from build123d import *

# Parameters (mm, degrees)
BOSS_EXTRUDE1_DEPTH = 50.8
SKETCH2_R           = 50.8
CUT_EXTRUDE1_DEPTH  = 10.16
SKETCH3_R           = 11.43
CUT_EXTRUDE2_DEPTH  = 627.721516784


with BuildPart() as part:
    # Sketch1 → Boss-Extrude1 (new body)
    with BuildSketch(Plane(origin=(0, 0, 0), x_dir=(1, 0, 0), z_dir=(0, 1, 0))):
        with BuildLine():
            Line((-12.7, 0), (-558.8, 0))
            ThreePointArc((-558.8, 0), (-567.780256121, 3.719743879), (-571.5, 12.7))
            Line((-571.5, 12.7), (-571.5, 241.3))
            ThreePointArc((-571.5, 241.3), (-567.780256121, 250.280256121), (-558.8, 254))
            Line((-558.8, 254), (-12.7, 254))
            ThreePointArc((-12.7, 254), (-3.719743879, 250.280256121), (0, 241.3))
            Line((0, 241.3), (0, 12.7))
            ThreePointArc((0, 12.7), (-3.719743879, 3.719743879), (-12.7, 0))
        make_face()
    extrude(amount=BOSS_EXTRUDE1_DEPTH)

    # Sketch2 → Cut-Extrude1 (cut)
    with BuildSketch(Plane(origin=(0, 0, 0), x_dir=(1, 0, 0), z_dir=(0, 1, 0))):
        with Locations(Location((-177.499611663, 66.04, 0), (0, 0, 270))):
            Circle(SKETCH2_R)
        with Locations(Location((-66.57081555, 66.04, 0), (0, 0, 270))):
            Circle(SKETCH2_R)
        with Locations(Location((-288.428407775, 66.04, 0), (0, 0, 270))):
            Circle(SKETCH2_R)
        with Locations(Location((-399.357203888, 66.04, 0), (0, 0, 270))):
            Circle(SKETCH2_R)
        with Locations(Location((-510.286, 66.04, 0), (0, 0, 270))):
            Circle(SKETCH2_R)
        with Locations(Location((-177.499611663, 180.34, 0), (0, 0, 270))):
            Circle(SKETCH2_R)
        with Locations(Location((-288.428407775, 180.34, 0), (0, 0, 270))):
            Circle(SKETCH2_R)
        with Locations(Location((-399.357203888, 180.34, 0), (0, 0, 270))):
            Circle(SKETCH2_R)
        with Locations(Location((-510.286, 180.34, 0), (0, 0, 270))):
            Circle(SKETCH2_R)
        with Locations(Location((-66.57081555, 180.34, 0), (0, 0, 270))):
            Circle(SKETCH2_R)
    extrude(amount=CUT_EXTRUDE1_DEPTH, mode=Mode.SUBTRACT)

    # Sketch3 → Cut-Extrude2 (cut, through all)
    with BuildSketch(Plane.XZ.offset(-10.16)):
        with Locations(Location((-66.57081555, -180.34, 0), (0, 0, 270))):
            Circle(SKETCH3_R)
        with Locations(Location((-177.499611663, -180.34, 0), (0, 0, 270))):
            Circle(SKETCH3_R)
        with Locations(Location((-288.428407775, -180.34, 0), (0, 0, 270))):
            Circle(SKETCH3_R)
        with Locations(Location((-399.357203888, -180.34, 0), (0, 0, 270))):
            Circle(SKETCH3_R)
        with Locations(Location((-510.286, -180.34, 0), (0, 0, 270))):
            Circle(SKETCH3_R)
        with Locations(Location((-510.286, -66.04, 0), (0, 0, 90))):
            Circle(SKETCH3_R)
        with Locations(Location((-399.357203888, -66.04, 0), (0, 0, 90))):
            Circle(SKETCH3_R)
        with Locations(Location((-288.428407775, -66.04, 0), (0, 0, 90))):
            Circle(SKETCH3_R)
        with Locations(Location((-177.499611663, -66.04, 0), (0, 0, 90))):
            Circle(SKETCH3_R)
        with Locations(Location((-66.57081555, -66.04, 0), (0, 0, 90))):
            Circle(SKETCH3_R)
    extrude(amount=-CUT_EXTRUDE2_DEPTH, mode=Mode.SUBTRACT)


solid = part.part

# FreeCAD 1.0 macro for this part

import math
import FreeCAD as App
import Part
import Sketcher
Q = App.Units.Quantity

doc = App.newDocument("Part")
body = doc.addObject("PartDesign::Body", "Body")

sketch1 = body.newObject("Sketcher::SketchObject", "Sketch")
sketch1.AttachmentSupport = (doc.getObject("XZ_Plane"), [""])
sketch1.MapMode = "FlatFace"
sketch1.addGeometry([
    Part.LineSegment(App.Vector(-559, 0, 0), App.Vector(-13, 0, 0)),
    Part.ArcOfCircle(Part.Circle(App.Vector(-13, -13, 0), App.Vector(0, 0, 1), 13), math.radians(0), math.radians(90)),
    Part.LineSegment(App.Vector(0, -13, 0), App.Vector(0, -241, 0)),
    Part.ArcOfCircle(Part.Circle(App.Vector(-13, -241, 0), App.Vector(0, 0, 1), 13), math.radians(-90), math.radians(0)),
    Part.LineSegment(App.Vector(-13, -254, 0), App.Vector(-559, -254, 0)),
    Part.ArcOfCircle(Part.Circle(App.Vector(-559, -241, 0), App.Vector(0, 0, 1), 13), math.radians(180), math.radians(270)),
    Part.LineSegment(App.Vector(-572, -241, 0), App.Vector(-572, -13, 0)),
    Part.ArcOfCircle(Part.Circle(App.Vector(-559, -13, 0), App.Vector(0, 0, 1), 13), math.radians(90), math.radians(180)),
], False)
sketch1.addConstraint([
    Sketcher.Constraint("Tangent", 0, 2, 1, 2),
    Sketcher.Constraint("Tangent", 1, 1, 2, 1),
    Sketcher.Constraint("Tangent", 2, 2, 3, 2),
    Sketcher.Constraint("Tangent", 3, 1, 4, 1),
    Sketcher.Constraint("Tangent", 4, 2, 5, 2),
    Sketcher.Constraint("Tangent", 5, 1, 6, 1),
    Sketcher.Constraint("Tangent", 6, 2, 7, 2),
    Sketcher.Constraint("Tangent", 7, 1, 0, 1),
    Sketcher.Constraint("Horizontal", 0),
    Sketcher.Constraint("Vertical", 2),
    Sketcher.Constraint("Horizontal", 4),
    Sketcher.Constraint("Vertical", 6),
    Sketcher.Constraint("Equal", 1, 3),
    Sketcher.Constraint("Equal", 3, 5),
    Sketcher.Constraint("Equal", 5, 7),
    Sketcher.Constraint("PointOnObject", 0, 2, -1),
    Sketcher.Constraint("PointOnObject", 1, 1, -2),
    Sketcher.Constraint("Radius", 1, Q("0.5 in")),
    Sketcher.Constraint("DistanceY", 2, 2, 2, 1, Q("9 in")),
    Sketcher.Constraint("DistanceX", 0, 1, 0, 2, Q("21.5 in")),
])
pad1 = body.newObject("PartDesign::Pad", "Pad")
pad1.Profile = sketch1
pad1.Length = Q("2 in")
pad1.Reversed = True

sketch2 = body.newObject("Sketcher::SketchObject", "Sketch001")
sketch2.AttachmentSupport = (doc.getObject("XZ_Plane"), [""])
sketch2.MapMode = "FlatFace"
sketch2.addGeometry([
    Part.Circle(App.Vector(-177, -66, 0), App.Vector(0, 0, 1), 51),
    Part.Circle(App.Vector(-67, -66, 0), App.Vector(0, 0, 1), 51),
    Part.Circle(App.Vector(-288, -66, 0), App.Vector(0, 0, 1), 51),
    Part.Circle(App.Vector(-399, -66, 0), App.Vector(0, 0, 1), 51),
    Part.Circle(App.Vector(-510, -66, 0), App.Vector(0, 0, 1), 51),
    Part.Circle(App.Vector(-177, -180, 0), App.Vector(0, 0, 1), 51),
    Part.Circle(App.Vector(-288, -180, 0), App.Vector(0, 0, 1), 51),
    Part.Circle(App.Vector(-399, -180, 0), App.Vector(0, 0, 1), 51),
    Part.Circle(App.Vector(-510, -180, 0), App.Vector(0, 0, 1), 51),
    Part.Circle(App.Vector(-67, -180, 0), App.Vector(0, 0, 1), 51),
], False)
sketch2.addConstraint([
    Sketcher.Constraint("Equal", 0, 1),
    Sketcher.Constraint("Equal", 1, 2),
    Sketcher.Constraint("Equal", 2, 3),
    Sketcher.Constraint("Equal", 3, 4),
    Sketcher.Constraint("Equal", 4, 5),
    Sketcher.Constraint("Equal", 5, 6),
    Sketcher.Constraint("Equal", 6, 7),
    Sketcher.Constraint("Equal", 7, 8),
    Sketcher.Constraint("Equal", 8, 9),
    Sketcher.Constraint("Horizontal", 0, 3, 1, 3),
    Sketcher.Constraint("Horizontal", 1, 3, 2, 3),
    Sketcher.Constraint("Horizontal", 2, 3, 3, 3),
    Sketcher.Constraint("Horizontal", 3, 3, 4, 3),
    Sketcher.Constraint("Horizontal", 5, 3, 6, 3),
    Sketcher.Constraint("Horizontal", 6, 3, 7, 3),
    Sketcher.Constraint("Horizontal", 7, 3, 8, 3),
    Sketcher.Constraint("Horizontal", 8, 3, 9, 3),
    Sketcher.Constraint("Vertical", 0, 3, 5, 3),
    Sketcher.Constraint("Vertical", 2, 3, 6, 3),
    Sketcher.Constraint("Vertical", 3, 3, 7, 3),
    Sketcher.Constraint("Vertical", 4, 3, 8, 3),
    Sketcher.Constraint("Vertical", 1, 3, 9, 3),
    Sketcher.Constraint("Diameter", 0, Q("4 in")),
    Sketcher.Constraint("DistanceY", 0, 3, -1, 1, Q("2.6 in")),
    Sketcher.Constraint("DistanceY", 5, 3, -1, 1, Q("7.1 in")),
    Sketcher.Constraint("DistanceX", 4, 3, -1, 1, Q("20.09 in")),
    Sketcher.Constraint("DistanceX", 0, 3, -1, 1, 177.499612),
    Sketcher.Constraint("DistanceX", 3, 3, 1, 3, 332.786388),
    Sketcher.Constraint("DistanceX", 1, 3, -1, 1, 66.570816),
    Sketcher.Constraint("DistanceX", 2, 3, -1, 1, 288.428408),
])
pocket1 = body.newObject("PartDesign::Pocket", "Pocket")
pocket1.Profile = sketch2
pocket1.Length = Q("0.4 in")

sketch3 = body.newObject("Sketcher::SketchObject", "Sketch002")
sketch3.AttachmentSupport = (doc.getObject("XZ_Plane"), [""])
sketch3.MapMode = "FlatFace"
sketch3.AttachmentOffset = App.Placement(App.Vector(0, 0, -0.4 * 25.4), App.Rotation())
sketch3.addGeometry([
    Part.Circle(App.Vector(-67, -180, 0), App.Vector(0, 0, 1), 11),
    Part.Circle(App.Vector(-177, -180, 0), App.Vector(0, 0, 1), 11),
    Part.Circle(App.Vector(-288, -180, 0), App.Vector(0, 0, 1), 11),
    Part.Circle(App.Vector(-399, -180, 0), App.Vector(0, 0, 1), 11),
    Part.Circle(App.Vector(-510, -180, 0), App.Vector(0, 0, 1), 11),
    Part.Circle(App.Vector(-510, -66, 0), App.Vector(0, 0, 1), 11),
    Part.Circle(App.Vector(-399, -66, 0), App.Vector(0, 0, 1), 11),
    Part.Circle(App.Vector(-288, -66, 0), App.Vector(0, 0, 1), 11),
    Part.Circle(App.Vector(-177, -66, 0), App.Vector(0, 0, 1), 11),
    Part.Circle(App.Vector(-67, -66, 0), App.Vector(0, 0, 1), 11),
], False)
sketch3.addConstraint([
    Sketcher.Constraint("Equal", 0, 1),
    Sketcher.Constraint("Equal", 1, 2),
    Sketcher.Constraint("Equal", 2, 3),
    Sketcher.Constraint("Equal", 3, 4),
    Sketcher.Constraint("Equal", 4, 5),
    Sketcher.Constraint("Equal", 5, 6),
    Sketcher.Constraint("Equal", 6, 7),
    Sketcher.Constraint("Equal", 7, 8),
    Sketcher.Constraint("Equal", 8, 9),
    Sketcher.Constraint("Horizontal", 0, 3, 1, 3),
    Sketcher.Constraint("Horizontal", 1, 3, 2, 3),
    Sketcher.Constraint("Horizontal", 2, 3, 3, 3),
    Sketcher.Constraint("Horizontal", 3, 3, 4, 3),
    Sketcher.Constraint("Horizontal", 5, 3, 6, 3),
    Sketcher.Constraint("Horizontal", 6, 3, 7, 3),
    Sketcher.Constraint("Horizontal", 7, 3, 8, 3),
    Sketcher.Constraint("Horizontal", 8, 3, 9, 3),
    Sketcher.Constraint("Vertical", 4, 3, 5, 3),
    Sketcher.Constraint("Vertical", 3, 3, 6, 3),
    Sketcher.Constraint("Vertical", 2, 3, 7, 3),
    Sketcher.Constraint("Vertical", 1, 3, 8, 3),
    Sketcher.Constraint("Vertical", 0, 3, 9, 3),
    Sketcher.Constraint("Diameter", 0, Q("0.9 in")),
    Sketcher.Constraint("DistanceY", 0, 3, -1, 1, Q("7.1 in")),
    Sketcher.Constraint("DistanceY", 5, 3, -1, 1, Q("2.6 in")),
    Sketcher.Constraint("DistanceX", 4, 3, -1, 1, Q("20.09 in")),
    Sketcher.Constraint("DistanceX", 1, 3, -1, 1, 177.499612),
    Sketcher.Constraint("DistanceX", 3, 3, 0, 3, 332.786388),
    Sketcher.Constraint("DistanceX", 0, 3, -1, 1, 66.570816),
    Sketcher.Constraint("DistanceX", 2, 3, -1, 1, 288.428408),
])
pocket2 = body.newObject("PartDesign::Pocket", "Pocket001")
pocket2.Profile = sketch3
pocket2.Type = "ThroughAll"

doc.recompute()
